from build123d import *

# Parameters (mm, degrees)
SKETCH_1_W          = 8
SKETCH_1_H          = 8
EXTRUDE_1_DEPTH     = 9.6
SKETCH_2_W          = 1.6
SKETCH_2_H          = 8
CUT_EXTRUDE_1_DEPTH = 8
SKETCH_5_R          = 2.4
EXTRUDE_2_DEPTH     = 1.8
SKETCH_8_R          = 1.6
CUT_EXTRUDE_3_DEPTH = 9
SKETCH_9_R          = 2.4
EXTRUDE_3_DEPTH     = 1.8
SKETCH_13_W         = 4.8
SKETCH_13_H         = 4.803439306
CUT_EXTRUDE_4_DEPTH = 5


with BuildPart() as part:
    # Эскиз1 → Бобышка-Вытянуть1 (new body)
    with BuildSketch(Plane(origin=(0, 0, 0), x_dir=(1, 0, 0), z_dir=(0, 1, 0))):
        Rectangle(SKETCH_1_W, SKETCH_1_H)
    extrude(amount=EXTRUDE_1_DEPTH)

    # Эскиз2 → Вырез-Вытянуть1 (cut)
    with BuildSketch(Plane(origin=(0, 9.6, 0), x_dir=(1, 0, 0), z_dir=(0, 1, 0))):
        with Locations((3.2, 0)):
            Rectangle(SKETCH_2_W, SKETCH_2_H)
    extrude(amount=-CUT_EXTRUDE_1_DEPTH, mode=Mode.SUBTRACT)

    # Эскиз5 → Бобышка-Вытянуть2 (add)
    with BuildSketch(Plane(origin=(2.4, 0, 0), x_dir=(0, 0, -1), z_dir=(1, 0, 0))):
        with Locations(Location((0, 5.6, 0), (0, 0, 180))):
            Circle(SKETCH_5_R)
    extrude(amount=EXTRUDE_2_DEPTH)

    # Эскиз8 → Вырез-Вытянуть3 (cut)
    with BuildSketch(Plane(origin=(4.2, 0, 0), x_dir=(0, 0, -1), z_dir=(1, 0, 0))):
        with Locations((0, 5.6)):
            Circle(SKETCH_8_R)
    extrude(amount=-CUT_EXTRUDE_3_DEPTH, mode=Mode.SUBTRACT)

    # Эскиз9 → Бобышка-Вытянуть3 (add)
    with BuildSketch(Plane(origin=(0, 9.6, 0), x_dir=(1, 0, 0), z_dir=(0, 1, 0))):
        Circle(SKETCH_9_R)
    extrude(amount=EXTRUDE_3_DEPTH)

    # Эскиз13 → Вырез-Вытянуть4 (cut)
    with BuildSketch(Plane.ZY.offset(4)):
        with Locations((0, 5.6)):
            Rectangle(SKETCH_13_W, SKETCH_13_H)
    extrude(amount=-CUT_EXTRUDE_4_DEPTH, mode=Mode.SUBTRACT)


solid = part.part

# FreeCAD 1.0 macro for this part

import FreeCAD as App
import Part
import Sketcher

V = App.Vector


def add_polygon(sketch, points):
    """Adds a closed chain of lines whose ends are joined by coincident constraints."""
    first, n = sketch.GeometryCount, len(points)
    for a, b in zip(points, points[1:] + points[:1]):
        sketch.addGeometry(Part.LineSegment(App.Vector(*a, 0), App.Vector(*b, 0)), False)
    for i in range(n):
        sketch.addConstraint(Sketcher.Constraint("Coincident", first + i, 2, first + (i + 1) % n, 1))

doc = App.newDocument("Part")
body = doc.addObject("PartDesign::Body", "Body")

# Sketch on XZ plane
sketch1 = doc.addObject("Sketcher::SketchObject", "Sketch")
body.addObject(sketch1)
sketch1.AttachmentSupport = (doc.XZ_Plane, [""])
sketch1.MapMode = "FlatFace"
add_polygon(sketch1, [(-4, -4), (-4, 4), (4, 4), (4, -4)])  # lines 0-3
sketch1.addConstraint([
    Sketcher.Constraint("Vertical", 0),
    Sketcher.Constraint("Horizontal", 1),
    Sketcher.Constraint("Vertical", 2),
    Sketcher.Constraint("Horizontal", 3),
    Sketcher.Constraint("Symmetric", 0, 2, 2, 2, -1, 1),
    Sketcher.Constraint("Equal", 3, 0),
    Sketcher.Constraint("DistanceX", 1, 1, 1, 2, 8.0),
])
pad1 = doc.addObject("PartDesign::Pad", "Pad")
body.addObject(pad1)
pad1.Profile = sketch1
pad1.Length = 9.6
pad1.Reversed = True

# Sketch on XZ plane
sketch2 = doc.addObject("Sketcher::SketchObject", "Sketch001")
body.addObject(sketch2)
sketch2.AttachmentSupport = (doc.XZ_Plane, [""])
sketch2.MapMode = "FlatFace"
sketch2.AttachmentOffset = App.Placement(V(0, 0, -9.6), App.Rotation())
add_polygon(sketch2, [(2.4, -4), (2.4, 4), (4, 4), (4, -4)])  # lines 0-3
sketch2.addConstraint([
    Sketcher.Constraint("Vertical", 0),
    Sketcher.Constraint("Horizontal", 1),
    Sketcher.Constraint("Vertical", 2),
    Sketcher.Constraint("Horizontal", 3),
    Sketcher.Constraint("DistanceY", 0, 1, 0, 2, 8.0),
    Sketcher.Constraint("DistanceX", 1, 1, 1, 2, 1.6),
    Sketcher.Constraint("DistanceY", -1, 1, 0, 2, 4.0),
    Sketcher.Constraint("DistanceX", -1, 1, 1, 2, 4.0),
])
pocket1 = doc.addObject("PartDesign::Pocket", "Pocket")
body.addObject(pocket1)
pocket1.Profile = sketch2
pocket1.Length = 8
pocket1.Reversed = True

# Sketch on YZ plane
sketch3 = doc.addObject("Sketcher::SketchObject", "Sketch002")
body.addObject(sketch3)
sketch3.AttachmentSupport = (doc.YZ_Plane, [""])
sketch3.MapMode = "FlatFace"
sketch3.AttachmentOffset = App.Placement(V(0, 0, 2.4), App.Rotation())
sketch3.addGeometry(Part.Circle(V(5.6, 0, 0), V(0, 0, 1), 2.4), False)
sketch3.addConstraint([
    Sketcher.Constraint("PointOnObject", 0, 3, -1),
    Sketcher.Constraint("Diameter", 0, 4.8),
    Sketcher.Constraint("DistanceX", -1, 1, 0, 3, 5.6),
])
pad2 = doc.addObject("PartDesign::Pad", "Pad001")
body.addObject(pad2)
pad2.Profile = sketch3
pad2.Length = 1.8

# Sketch on YZ plane
sketch4 = doc.addObject("Sketcher::SketchObject", "Sketch003")
body.addObject(sketch4)
sketch4.AttachmentSupport = (doc.YZ_Plane, [""])
sketch4.MapMode = "FlatFace"
sketch4.AttachmentOffset = App.Placement(V(0, 0, 4.2), App.Rotation())
sketch4.addGeometry(Part.Circle(V(5.6, 0, 0), V(0, 0, 1), 1.6), False)
sketch4.addConstraint([
    Sketcher.Constraint("PointOnObject", 0, 3, -1),
    Sketcher.Constraint("Diameter", 0, 3.2),
    Sketcher.Constraint("DistanceX", -1, 1, 0, 3, 5.6),
])
pocket2 = doc.addObject("PartDesign::Pocket", "Pocket001")
body.addObject(pocket2)
pocket2.Profile = sketch4
pocket2.Length = 9

# Sketch on XZ plane
sketch5 = doc.addObject("Sketcher::SketchObject", "Sketch004")
body.addObject(sketch5)
sketch5.AttachmentSupport = (doc.XZ_Plane, [""])
sketch5.MapMode = "FlatFace"
sketch5.AttachmentOffset = App.Placement(V(0, 0, -9.6), App.Rotation())
sketch5.addGeometry(Part.Circle(V(0, 0, 0), V(0, 0, 1), 2.4), False)
sketch5.addConstraint([
    Sketcher.Constraint("Coincident", 0, 3, -1, 1),
    Sketcher.Constraint("Diameter", 0, 4.8),
])
pad3 = doc.addObject("PartDesign::Pad", "Pad002")
body.addObject(pad3)
pad3.Profile = sketch5
pad3.Length = 1.8
pad3.Reversed = True

# Sketch on YZ plane
sketch6 = doc.addObject("Sketcher::SketchObject", "Sketch005")
body.addObject(sketch6)
sketch6.AttachmentSupport = (doc.YZ_Plane, [""])
sketch6.MapMode = "FlatFace"
sketch6.AttachmentOffset = App.Placement(V(0, 0, -4), App.Rotation())
add_polygon(sketch6, [(8, -2.4), (3.2, -2.4), (3.2, 2.4), (8, 2.4)])  # lines 0-3
sketch6.addConstraint([
    Sketcher.Constraint("Horizontal", 0),
    Sketcher.Constraint("Vertical", 1),
    Sketcher.Constraint("Horizontal", 2),
    Sketcher.Constraint("Vertical", 3),
    Sketcher.Constraint("DistanceY", 1, 1, 1, 2, 4.8),
    Sketcher.Constraint("DistanceY", 0, 2, -1, 1, 2.4),
    Sketcher.Constraint("DistanceX", 0, 2, 0, 1, 4.803439),
    Sketcher.Constraint("DistanceX", -1, 1, 0, 2, 3.19828),
])
pocket3 = doc.addObject("PartDesign::Pocket", "Pocket002")
body.addObject(pocket3)
pocket3.Profile = sketch6
pocket3.Length = 5
pocket3.Reversed = True

doc.recompute()
